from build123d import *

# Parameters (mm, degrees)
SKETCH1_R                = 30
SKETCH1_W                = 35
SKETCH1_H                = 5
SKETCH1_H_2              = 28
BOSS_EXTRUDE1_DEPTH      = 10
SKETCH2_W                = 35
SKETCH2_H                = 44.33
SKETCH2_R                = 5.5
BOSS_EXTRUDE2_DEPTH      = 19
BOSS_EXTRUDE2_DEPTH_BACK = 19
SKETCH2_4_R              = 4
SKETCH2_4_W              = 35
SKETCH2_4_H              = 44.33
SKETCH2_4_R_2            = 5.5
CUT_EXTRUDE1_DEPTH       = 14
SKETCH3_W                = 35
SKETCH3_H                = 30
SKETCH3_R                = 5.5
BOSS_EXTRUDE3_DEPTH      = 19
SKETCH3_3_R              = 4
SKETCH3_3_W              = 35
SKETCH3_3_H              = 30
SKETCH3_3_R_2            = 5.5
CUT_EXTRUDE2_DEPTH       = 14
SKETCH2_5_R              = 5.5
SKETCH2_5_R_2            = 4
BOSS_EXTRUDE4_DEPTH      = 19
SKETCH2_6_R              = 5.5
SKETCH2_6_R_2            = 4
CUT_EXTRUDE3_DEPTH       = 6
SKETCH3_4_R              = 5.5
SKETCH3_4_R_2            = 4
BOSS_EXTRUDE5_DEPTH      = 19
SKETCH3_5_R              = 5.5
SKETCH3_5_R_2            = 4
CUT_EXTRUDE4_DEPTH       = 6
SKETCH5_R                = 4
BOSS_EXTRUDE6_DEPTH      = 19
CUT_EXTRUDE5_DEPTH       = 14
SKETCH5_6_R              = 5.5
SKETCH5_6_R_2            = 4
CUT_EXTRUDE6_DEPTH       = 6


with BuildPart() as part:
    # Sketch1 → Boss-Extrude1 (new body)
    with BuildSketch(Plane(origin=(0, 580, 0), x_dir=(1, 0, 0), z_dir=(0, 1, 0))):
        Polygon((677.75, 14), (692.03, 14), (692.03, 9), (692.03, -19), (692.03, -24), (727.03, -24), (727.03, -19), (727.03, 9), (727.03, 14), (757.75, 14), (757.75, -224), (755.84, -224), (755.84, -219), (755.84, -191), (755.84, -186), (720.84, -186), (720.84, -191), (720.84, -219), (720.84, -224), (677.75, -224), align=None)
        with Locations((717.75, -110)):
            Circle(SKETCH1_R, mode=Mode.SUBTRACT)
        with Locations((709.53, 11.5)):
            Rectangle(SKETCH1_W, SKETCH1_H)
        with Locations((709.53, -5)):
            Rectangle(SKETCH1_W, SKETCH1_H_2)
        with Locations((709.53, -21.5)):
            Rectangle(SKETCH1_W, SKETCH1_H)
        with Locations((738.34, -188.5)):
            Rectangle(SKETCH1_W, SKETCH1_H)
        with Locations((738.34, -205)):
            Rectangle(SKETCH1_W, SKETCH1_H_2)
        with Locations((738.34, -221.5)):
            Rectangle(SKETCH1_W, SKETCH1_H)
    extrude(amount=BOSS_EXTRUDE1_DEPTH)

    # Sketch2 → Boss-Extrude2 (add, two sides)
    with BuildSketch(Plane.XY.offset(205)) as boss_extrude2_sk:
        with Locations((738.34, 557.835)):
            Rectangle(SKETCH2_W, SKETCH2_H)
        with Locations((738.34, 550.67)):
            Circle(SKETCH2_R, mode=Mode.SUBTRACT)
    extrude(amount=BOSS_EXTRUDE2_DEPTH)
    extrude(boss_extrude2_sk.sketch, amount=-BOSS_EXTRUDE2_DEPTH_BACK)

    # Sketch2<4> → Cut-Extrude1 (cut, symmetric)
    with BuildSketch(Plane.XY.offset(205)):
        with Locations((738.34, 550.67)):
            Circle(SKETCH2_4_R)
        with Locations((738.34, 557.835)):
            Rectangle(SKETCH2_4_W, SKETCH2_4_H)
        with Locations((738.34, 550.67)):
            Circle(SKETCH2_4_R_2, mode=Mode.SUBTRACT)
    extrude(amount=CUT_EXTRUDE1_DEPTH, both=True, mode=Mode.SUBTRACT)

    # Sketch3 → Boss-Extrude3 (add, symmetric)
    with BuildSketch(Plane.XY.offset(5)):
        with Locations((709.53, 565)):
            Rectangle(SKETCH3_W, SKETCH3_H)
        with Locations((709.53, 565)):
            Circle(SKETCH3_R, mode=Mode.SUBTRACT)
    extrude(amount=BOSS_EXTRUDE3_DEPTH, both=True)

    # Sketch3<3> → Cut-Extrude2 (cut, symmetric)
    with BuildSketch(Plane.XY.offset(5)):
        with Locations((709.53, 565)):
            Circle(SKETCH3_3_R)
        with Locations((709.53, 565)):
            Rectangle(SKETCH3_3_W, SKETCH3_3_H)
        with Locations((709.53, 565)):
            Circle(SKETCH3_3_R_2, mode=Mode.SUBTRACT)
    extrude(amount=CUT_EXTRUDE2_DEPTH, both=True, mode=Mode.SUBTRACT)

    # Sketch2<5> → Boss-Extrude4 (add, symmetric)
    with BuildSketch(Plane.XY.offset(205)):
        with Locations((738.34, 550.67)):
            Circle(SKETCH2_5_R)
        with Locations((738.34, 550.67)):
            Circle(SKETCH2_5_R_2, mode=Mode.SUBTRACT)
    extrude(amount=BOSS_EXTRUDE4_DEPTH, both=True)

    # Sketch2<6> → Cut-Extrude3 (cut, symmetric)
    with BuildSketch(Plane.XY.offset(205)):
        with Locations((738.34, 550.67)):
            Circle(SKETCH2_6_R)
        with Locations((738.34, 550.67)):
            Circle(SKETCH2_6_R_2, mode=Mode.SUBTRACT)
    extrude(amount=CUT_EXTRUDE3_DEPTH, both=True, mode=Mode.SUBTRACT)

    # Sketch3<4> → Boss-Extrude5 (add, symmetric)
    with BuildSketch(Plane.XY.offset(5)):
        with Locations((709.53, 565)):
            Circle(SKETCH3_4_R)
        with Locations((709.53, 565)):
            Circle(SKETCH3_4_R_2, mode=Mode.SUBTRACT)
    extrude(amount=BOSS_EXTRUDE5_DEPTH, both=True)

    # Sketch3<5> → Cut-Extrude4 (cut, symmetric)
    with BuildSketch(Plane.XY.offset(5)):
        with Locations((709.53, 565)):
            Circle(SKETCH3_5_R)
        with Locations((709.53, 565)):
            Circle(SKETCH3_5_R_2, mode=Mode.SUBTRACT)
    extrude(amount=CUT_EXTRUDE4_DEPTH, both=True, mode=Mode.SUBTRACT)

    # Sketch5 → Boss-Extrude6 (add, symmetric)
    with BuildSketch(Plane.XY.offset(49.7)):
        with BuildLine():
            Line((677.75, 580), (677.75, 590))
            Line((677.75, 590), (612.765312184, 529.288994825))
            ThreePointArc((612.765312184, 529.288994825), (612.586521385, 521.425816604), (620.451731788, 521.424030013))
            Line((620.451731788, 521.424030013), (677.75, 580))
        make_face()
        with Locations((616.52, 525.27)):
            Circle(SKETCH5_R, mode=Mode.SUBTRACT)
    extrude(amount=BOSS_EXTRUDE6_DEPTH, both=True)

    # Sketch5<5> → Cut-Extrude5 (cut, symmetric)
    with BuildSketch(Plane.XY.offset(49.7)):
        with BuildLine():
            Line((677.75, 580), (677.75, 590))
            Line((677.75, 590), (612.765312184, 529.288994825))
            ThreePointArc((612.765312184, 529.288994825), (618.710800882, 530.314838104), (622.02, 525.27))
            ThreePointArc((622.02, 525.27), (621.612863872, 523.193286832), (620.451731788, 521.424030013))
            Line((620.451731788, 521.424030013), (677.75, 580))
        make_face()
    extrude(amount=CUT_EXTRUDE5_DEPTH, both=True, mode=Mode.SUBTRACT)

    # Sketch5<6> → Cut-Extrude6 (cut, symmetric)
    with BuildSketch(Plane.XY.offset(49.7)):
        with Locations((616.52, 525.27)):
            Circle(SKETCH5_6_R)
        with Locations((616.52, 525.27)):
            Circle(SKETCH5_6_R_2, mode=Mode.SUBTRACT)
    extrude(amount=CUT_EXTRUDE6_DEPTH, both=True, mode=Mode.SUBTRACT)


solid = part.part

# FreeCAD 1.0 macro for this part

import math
import FreeCAD as App
import Part
import Sketcher
from FreeCAD import Vector

doc = App.newDocument("Part")
body = doc.addObject("PartDesign::Body", "Body")

sketch1 = body.newObject("Sketcher::SketchObject", "Sketch")
sketch1.AttachmentSupport = (doc.getObject("XZ_Plane"), [""])
sketch1.MapMode = "FlatFace"
sketch1.AttachmentOffset = App.Placement(Vector(0, 0, -580), App.Rotation())
sketch1.addGeometry(Part.LineSegment(Vector(758, -14, 0), Vector(678, -14, 0)), False)
sketch1.addGeometry(Part.LineSegment(Vector(678, -14, 0), Vector(678, 224, 0)), False)
sketch1.addGeometry(Part.LineSegment(Vector(678, 224, 0), Vector(758, 224, 0)), False)
sketch1.addGeometry(Part.LineSegment(Vector(758, 224, 0), Vector(758, -14, 0)), False)
sketch1.addGeometry(Part.Circle(Vector(718, 110, 0), Vector(0, 0, 1), 30), False)
sketch1.addConstraint(Sketcher.Constraint("Coincident", 0, 2, 1, 1))
sketch1.addConstraint(Sketcher.Constraint("Coincident", 1, 2, 2, 1))
sketch1.addConstraint(Sketcher.Constraint("Coincident", 2, 2, 3, 1))
sketch1.addConstraint(Sketcher.Constraint("Coincident", 3, 2, 0, 1))
sketch1.addConstraint(Sketcher.Constraint("Horizontal", 0))
sketch1.addConstraint(Sketcher.Constraint("Vertical", 1))
sketch1.addConstraint(Sketcher.Constraint("Horizontal", 2))
sketch1.addConstraint(Sketcher.Constraint("Vertical", 3))
sketch1.addConstraint(Sketcher.Constraint("Diameter", 4, 60.0))
sketch1.addConstraint(Sketcher.Constraint("DistanceX", 0, 2, 0, 1, 80.0))
sketch1.addConstraint(Sketcher.Constraint("DistanceY", 1, 1, 1, 2, 238.0))
sketch1.addConstraint(Sketcher.Constraint("DistanceY", -1, 1, 4, 3, 110.0))
sketch1.addConstraint(Sketcher.Constraint("DistanceY", 0, 2, -1, 1, 14.0))
sketch1.addConstraint(Sketcher.Constraint("DistanceX", 0, 2, 4, 3, 40.0))
sketch1.addConstraint(Sketcher.Constraint("DistanceX", -1, 1, 4, 3, 717.75))
pad1 = body.newObject("PartDesign::Pad", "Pad")
pad1.Profile = sketch1
pad1.Length = 10
pad1.Reversed = True

sketch2 = body.newObject("Sketcher::SketchObject", "Sketch001")
sketch2.AttachmentSupport = (doc.getObject("XY_Plane"), [""])
sketch2.MapMode = "FlatFace"
sketch2.AttachmentOffset = App.Placement(Vector(0, 0, 205), App.Rotation())
sketch2.addGeometry(Part.LineSegment(Vector(721, 580, 0), Vector(721, 536, 0)), False)
sketch2.addGeometry(Part.LineSegment(Vector(721, 536, 0), Vector(756, 536, 0)), False)
sketch2.addGeometry(Part.LineSegment(Vector(756, 536, 0), Vector(756, 580, 0)), False)
sketch2.addGeometry(Part.LineSegment(Vector(756, 580, 0), Vector(721, 580, 0)), False)
sketch2.addGeometry(Part.Circle(Vector(738, 551, 0), Vector(0, 0, 1), 6), False)
sketch2.addConstraint(Sketcher.Constraint("Coincident", 0, 2, 1, 1))
sketch2.addConstraint(Sketcher.Constraint("Coincident", 1, 2, 2, 1))
sketch2.addConstraint(Sketcher.Constraint("Coincident", 2, 2, 3, 1))
sketch2.addConstraint(Sketcher.Constraint("Coincident", 3, 2, 0, 1))
sketch2.addConstraint(Sketcher.Constraint("Vertical", 0))
sketch2.addConstraint(Sketcher.Constraint("Horizontal", 1))
sketch2.addConstraint(Sketcher.Constraint("Vertical", 2))
sketch2.addConstraint(Sketcher.Constraint("Horizontal", 3))
sketch2.addConstraint(Sketcher.Constraint("Diameter", 4, 11.0))
sketch2.addConstraint(Sketcher.Constraint("DistanceX", 1, 1, 1, 2, 35.0))
sketch2.addConstraint(Sketcher.Constraint("DistanceY", -1, 1, 2, 2, 580.0))
sketch2.addConstraint(Sketcher.Constraint("DistanceY", 0, 2, 4, 3, 15.0))
sketch2.addConstraint(Sketcher.Constraint("DistanceY", 0, 2, 0, 1, 44.33))
sketch2.addConstraint(Sketcher.Constraint("DistanceX", 0, 2, 4, 3, 17.5))
sketch2.addConstraint(Sketcher.Constraint("DistanceX", -1, 1, 4, 3, 738.34))
pad2 = body.newObject("PartDesign::Pad", "Pad001")
pad2.Profile = sketch2
pad2.Type = "TwoLengths"
pad2.Length = 19
pad2.Length2 = 19

sketch3 = body.newObject("Sketcher::SketchObject", "Sketch002")
sketch3.AttachmentSupport = (doc.getObject("XY_Plane"), [""])
sketch3.MapMode = "FlatFace"
sketch3.AttachmentOffset = App.Placement(Vector(0, 0, 205), App.Rotation())
sketch3.addGeometry(Part.LineSegment(Vector(721, 580, 0), Vector(721, 536, 0)), False)
sketch3.addGeometry(Part.LineSegment(Vector(721, 536, 0), Vector(756, 536, 0)), False)
sketch3.addGeometry(Part.LineSegment(Vector(756, 536, 0), Vector(756, 580, 0)), False)
sketch3.addGeometry(Part.LineSegment(Vector(756, 580, 0), Vector(721, 580, 0)), False)
sketch3.addGeometry(Part.Circle(Vector(738, 551, 0), Vector(0, 0, 1), 6), False)
sketch3.addConstraint(Sketcher.Constraint("Coincident", 0, 2, 1, 1))
sketch3.addConstraint(Sketcher.Constraint("Coincident", 1, 2, 2, 1))
sketch3.addConstraint(Sketcher.Constraint("Coincident", 2, 2, 3, 1))
sketch3.addConstraint(Sketcher.Constraint("Coincident", 3, 2, 0, 1))
sketch3.addConstraint(Sketcher.Constraint("Vertical", 0))
sketch3.addConstraint(Sketcher.Constraint("Horizontal", 1))
sketch3.addConstraint(Sketcher.Constraint("Vertical", 2))
sketch3.addConstraint(Sketcher.Constraint("Horizontal", 3))
sketch3.addConstraint(Sketcher.Constraint("Diameter", 4, 11.0))
sketch3.addConstraint(Sketcher.Constraint("DistanceX", 1, 1, 1, 2, 35.0))
sketch3.addConstraint(Sketcher.Constraint("DistanceY", -1, 1, 2, 2, 580.0))
sketch3.addConstraint(Sketcher.Constraint("DistanceY", 0, 2, 4, 3, 15.0))
sketch3.addConstraint(Sketcher.Constraint("DistanceY", 0, 2, 0, 1, 44.33))
sketch3.addConstraint(Sketcher.Constraint("DistanceX", 0, 2, 4, 3, 17.5))
sketch3.addConstraint(Sketcher.Constraint("DistanceX", -1, 1, 4, 3, 738.34))
pocket1 = body.newObject("PartDesign::Pocket", "Pocket")
pocket1.Profile = sketch3
pocket1.Length = 28
pocket1.Midplane = True

sketch4 = body.newObject("Sketcher::SketchObject", "Sketch003")
sketch4.AttachmentSupport = (doc.getObject("XY_Plane"), [""])
sketch4.MapMode = "FlatFace"
sketch4.AttachmentOffset = App.Placement(Vector(0, 0, 5), App.Rotation())
sketch4.addGeometry(Part.LineSegment(Vector(692, 580, 0), Vector(692, 550, 0)), False)
sketch4.addGeometry(Part.LineSegment(Vector(692, 550, 0), Vector(727, 550, 0)), False)
sketch4.addGeometry(Part.LineSegment(Vector(727, 550, 0), Vector(727, 580, 0)), False)
sketch4.addGeometry(Part.LineSegment(Vector(727, 580, 0), Vector(692, 580, 0)), False)
sketch4.addGeometry(Part.Circle(Vector(710, 565, 0), Vector(0, 0, 1), 6), False)
sketch4.addConstraint(Sketcher.Constraint("Coincident", 0, 2, 1, 1))
sketch4.addConstraint(Sketcher.Constraint("Coincident", 1, 2, 2, 1))
sketch4.addConstraint(Sketcher.Constraint("Coincident", 2, 2, 3, 1))
sketch4.addConstraint(Sketcher.Constraint("Coincident", 3, 2, 0, 1))
sketch4.addConstraint(Sketcher.Constraint("Vertical", 0))
sketch4.addConstraint(Sketcher.Constraint("Horizontal", 1))
sketch4.addConstraint(Sketcher.Constraint("Vertical", 2))
sketch4.addConstraint(Sketcher.Constraint("Horizontal", 3))
sketch4.addConstraint(Sketcher.Constraint("Diameter", 4, 11.0))
sketch4.addConstraint(Sketcher.Constraint("DistanceX", 1, 1, 1, 2, 35.0))
sketch4.addConstraint(Sketcher.Constraint("DistanceY", 0, 2, 0, 1, 30.0))
sketch4.addConstraint(Sketcher.Constraint("DistanceY", -1, 1, 4, 3, 565.0))
sketch4.addConstraint(Sketcher.Constraint("DistanceY", -1, 1, 0, 2, 550.0))
sketch4.addConstraint(Sketcher.Constraint("DistanceX", 0, 2, 4, 3, 17.5))
sketch4.addConstraint(Sketcher.Constraint("DistanceX", -1, 1, 4, 3, 709.53))
pad3 = body.newObject("PartDesign::Pad", "Pad002")
pad3.Profile = sketch4
pad3.Length = 38
pad3.Midplane = True

sketch5 = body.newObject("Sketcher::SketchObject", "Sketch004")
sketch5.AttachmentSupport = (doc.getObject("XY_Plane"), [""])
sketch5.MapMode = "FlatFace"
sketch5.AttachmentOffset = App.Placement(Vector(0, 0, 5), App.Rotation())
sketch5.addGeometry(Part.LineSegment(Vector(692, 580, 0), Vector(692, 550, 0)), False)
sketch5.addGeometry(Part.LineSegment(Vector(692, 550, 0), Vector(727, 550, 0)), False)
sketch5.addGeometry(Part.LineSegment(Vector(727, 550, 0), Vector(727, 580, 0)), False)
sketch5.addGeometry(Part.LineSegment(Vector(727, 580, 0), Vector(692, 580, 0)), False)
sketch5.addGeometry(Part.Circle(Vector(710, 565, 0), Vector(0, 0, 1), 6), False)
sketch5.addConstraint(Sketcher.Constraint("Coincident", 0, 2, 1, 1))
sketch5.addConstraint(Sketcher.Constraint("Coincident", 1, 2, 2, 1))
sketch5.addConstraint(Sketcher.Constraint("Coincident", 2, 2, 3, 1))
sketch5.addConstraint(Sketcher.Constraint("Coincident", 3, 2, 0, 1))
sketch5.addConstraint(Sketcher.Constraint("Vertical", 0))
sketch5.addConstraint(Sketcher.Constraint("Horizontal", 1))
sketch5.addConstraint(Sketcher.Constraint("Vertical", 2))
sketch5.addConstraint(Sketcher.Constraint("Horizontal", 3))
sketch5.addConstraint(Sketcher.Constraint("Diameter", 4, 11.0))
sketch5.addConstraint(Sketcher.Constraint("DistanceX", 1, 1, 1, 2, 35.0))
sketch5.addConstraint(Sketcher.Constraint("DistanceY", 0, 2, 0, 1, 30.0))
sketch5.addConstraint(Sketcher.Constraint("DistanceY", -1, 1, 4, 3, 565.0))
sketch5.addConstraint(Sketcher.Constraint("DistanceY", -1, 1, 0, 2, 550.0))
sketch5.addConstraint(Sketcher.Constraint("DistanceX", 0, 2, 4, 3, 17.5))
sketch5.addConstraint(Sketcher.Constraint("DistanceX", -1, 1, 4, 3, 709.53))
pocket2 = body.newObject("PartDesign::Pocket", "Pocket001")
pocket2.Profile = sketch5
pocket2.Length = 28
pocket2.Midplane = True

sketch6 = body.newObject("Sketcher::SketchObject", "Sketch005")
sketch6.AttachmentSupport = (doc.getObject("XY_Plane"), [""])
sketch6.MapMode = "FlatFace"
sketch6.AttachmentOffset = App.Placement(Vector(0, 0, 205), App.Rotation())
sketch6.addGeometry(Part.Circle(Vector(738.3, 550.7, 0), Vector(0, 0, 1), 5.5), False)
sketch6.addGeometry(Part.Circle(Vector(738.3, 550.7, 0), Vector(0, 0, 1), 4), False)
sketch6.addConstraint(Sketcher.Constraint("Coincident", 1, 3, 0, 3))
sketch6.addConstraint(Sketcher.Constraint("Diameter", 0, 11.0))
sketch6.addConstraint(Sketcher.Constraint("Diameter", 1, 8.0))
sketch6.addConstraint(Sketcher.Constraint("DistanceX", -1, 1, 0, 3, 738.34))
sketch6.addConstraint(Sketcher.Constraint("DistanceY", -1, 1, 0, 3, 550.67))
pad4 = body.newObject("PartDesign::Pad", "Pad003")
pad4.Profile = sketch6
pad4.Length = 38
pad4.Midplane = True

sketch7 = body.newObject("Sketcher::SketchObject", "Sketch006")
sketch7.AttachmentSupport = (doc.getObject("XY_Plane"), [""])
sketch7.MapMode = "FlatFace"
sketch7.AttachmentOffset = App.Placement(Vector(0, 0, 205), App.Rotation())
sketch7.addGeometry(Part.Circle(Vector(738.3, 550.7, 0), Vector(0, 0, 1), 5.5), False)
sketch7.addGeometry(Part.Circle(Vector(738.3, 550.7, 0), Vector(0, 0, 1), 4), False)
sketch7.addConstraint(Sketcher.Constraint("Coincident", 1, 3, 0, 3))
sketch7.addConstraint(Sketcher.Constraint("Diameter", 0, 11.0))
sketch7.addConstraint(Sketcher.Constraint("Diameter", 1, 8.0))
sketch7.addConstraint(Sketcher.Constraint("DistanceX", -1, 1, 0, 3, 738.34))
sketch7.addConstraint(Sketcher.Constraint("DistanceY", -1, 1, 0, 3, 550.67))
pocket3 = body.newObject("PartDesign::Pocket", "Pocket002")
pocket3.Profile = sketch7
pocket3.Length = 12
pocket3.Midplane = True

sketch8 = body.newObject("Sketcher::SketchObject", "Sketch007")
sketch8.AttachmentSupport = (doc.getObject("XY_Plane"), [""])
sketch8.MapMode = "FlatFace"
sketch8.AttachmentOffset = App.Placement(Vector(0, 0, 5), App.Rotation())
sketch8.addGeometry(Part.Circle(Vector(709.5, 565, 0), Vector(0, 0, 1), 5.5), False)
sketch8.addGeometry(Part.Circle(Vector(709.5, 565, 0), Vector(0, 0, 1), 4), False)
sketch8.addConstraint(Sketcher.Constraint("Coincident", 1, 3, 0, 3))
sketch8.addConstraint(Sketcher.Constraint("Diameter", 0, 11.0))
sketch8.addConstraint(Sketcher.Constraint("Diameter", 1, 8.0))
sketch8.addConstraint(Sketcher.Constraint("DistanceY", -1, 1, 0, 3, 565.0))
sketch8.addConstraint(Sketcher.Constraint("DistanceX", -1, 1, 0, 3, 709.53))
pad5 = body.newObject("PartDesign::Pad", "Pad004")
pad5.Profile = sketch8
pad5.Length = 38
pad5.Midplane = True

sketch9 = body.newObject("Sketcher::SketchObject", "Sketch008")
sketch9.AttachmentSupport = (doc.getObject("XY_Plane"), [""])
sketch9.MapMode = "FlatFace"
sketch9.AttachmentOffset = App.Placement(Vector(0, 0, 5), App.Rotation())
sketch9.addGeometry(Part.Circle(Vector(709.5, 565, 0), Vector(0, 0, 1), 5.5), False)
sketch9.addGeometry(Part.Circle(Vector(709.5, 565, 0), Vector(0, 0, 1), 4), False)
sketch9.addConstraint(Sketcher.Constraint("Coincident", 1, 3, 0, 3))
sketch9.addConstraint(Sketcher.Constraint("Diameter", 0, 11.0))
sketch9.addConstraint(Sketcher.Constraint("Diameter", 1, 8.0))
sketch9.addConstraint(Sketcher.Constraint("DistanceY", -1, 1, 0, 3, 565.0))
sketch9.addConstraint(Sketcher.Constraint("DistanceX", -1, 1, 0, 3, 709.53))
pocket4 = body.newObject("PartDesign::Pocket", "Pocket003")
pocket4.Profile = sketch9
pocket4.Length = 12
pocket4.Midplane = True

sketch10 = body.newObject("Sketcher::SketchObject", "Sketch009")
sketch10.AttachmentSupport = (doc.getObject("XY_Plane"), [""])
sketch10.MapMode = "FlatFace"
sketch10.AttachmentOffset = App.Placement(Vector(0, 0, 49.7), App.Rotation())
sketch10.addGeometry(Part.LineSegment(Vector(677.8, 580, 0), Vector(677.8, 590, 0)), False)
sketch10.addGeometry(Part.LineSegment(Vector(677.8, 590, 0), Vector(612.8, 529.3, 0)), False)
sketch10.addGeometry(Part.ArcOfCircle(Part.Circle(Vector(616.5, 525.3, 0), Vector(0, 0, 1), 5.5), math.radians(133), math.radians(316)), False)
sketch10.addGeometry(Part.LineSegment(Vector(620.5, 521.4, 0), Vector(677.8, 580, 0)), False)
sketch10.addGeometry(Part.Circle(Vector(616.5, 525.3, 0), Vector(0, 0, 1), 4), False)
sketch10.addConstraint(Sketcher.Constraint("Coincident", 0, 2, 1, 1))
sketch10.addConstraint(Sketcher.Constraint("Tangent", 1, 2, 2, 1))
sketch10.addConstraint(Sketcher.Constraint("Tangent", 2, 2, 3, 1))
sketch10.addConstraint(Sketcher.Constraint("Coincident", 3, 2, 0, 1))
sketch10.addConstraint(Sketcher.Constraint("Vertical", 0))
sketch10.addConstraint(Sketcher.Constraint("Coincident", 4, 3, 2, 3))
sketch10.addConstraint(Sketcher.Constraint("Diameter", 4, 8.0))
sketch10.addConstraint(Sketcher.Constraint("Radius", 2, 5.5))
sketch10.addConstraint(Sketcher.Constraint("DistanceY", 0, 1, 0, 2, 10.0))
sketch10.addConstraint(Sketcher.Constraint("DistanceY", -1, 1, 0, 2, 590.0))
sketch10.addConstraint(Sketcher.Constraint("DistanceX", -1, 1, 2, 3, 616.52))
sketch10.addConstraint(Sketcher.Constraint("DistanceY", -1, 1, 2, 3, 525.27))
sketch10.addConstraint(Sketcher.Constraint("DistanceX", -1, 1, 0, 2, 677.75))
pad6 = body.newObject("PartDesign::Pad", "Pad005")
pad6.Profile = sketch10
pad6.Length = 38
pad6.Midplane = True

sketch11 = body.newObject("Sketcher::SketchObject", "Sketch010")
sketch11.AttachmentSupport = (doc.getObject("XY_Plane"), [""])
sketch11.MapMode = "FlatFace"
sketch11.AttachmentOffset = App.Placement(Vector(0, 0, 49.7), App.Rotation())
sketch11.addGeometry(Part.LineSegment(Vector(677.8, 580, 0), Vector(677.8, 590, 0)), False)
sketch11.addGeometry(Part.LineSegment(Vector(677.8, 590, 0), Vector(612.8, 529.3, 0)), False)
sketch11.addGeometry(Part.ArcOfCircle(Part.Circle(Vector(616.5, 525.3, 0), Vector(0, 0, 1), 5.5), math.radians(0), math.radians(133)), False)
sketch11.addGeometry(Part.ArcOfCircle(Part.Circle(Vector(616.5, 525.3, 0), Vector(0, 0, 1), 5.5), math.radians(-44), math.radians(0)), False)
sketch11.addGeometry(Part.LineSegment(Vector(620.5, 521.4, 0), Vector(677.8, 580, 0)), False)
sketch11.addConstraint(Sketcher.Constraint("Coincident", 0, 2, 1, 1))
sketch11.addConstraint(Sketcher.Constraint("Tangent", 1, 2, 2, 2))
sketch11.addConstraint(Sketcher.Constraint("Tangent", 2, 1, 3, 2))
sketch11.addConstraint(Sketcher.Constraint("Tangent", 3, 1, 4, 1))
sketch11.addConstraint(Sketcher.Constraint("Coincident", 4, 2, 0, 1))
sketch11.addConstraint(Sketcher.Constraint("Vertical", 0))
sketch11.addConstraint(Sketcher.Constraint("Equal", 2, 3))
sketch11.addConstraint(Sketcher.Constraint("Horizontal", 3, 3, 2, 1))
sketch11.addConstraint(Sketcher.Constraint("Radius", 2, 5.5))
sketch11.addConstraint(Sketcher.Constraint("DistanceY", 0, 1, 0, 2, 10.0))
sketch11.addConstraint(Sketcher.Constraint("DistanceY", -1, 1, 0, 2, 590.0))
sketch11.addConstraint(Sketcher.Constraint("DistanceX", -1, 1, 2, 3, 616.52))
sketch11.addConstraint(Sketcher.Constraint("DistanceY", -1, 1, 2, 3, 525.27))
sketch11.addConstraint(Sketcher.Constraint("DistanceX", -1, 1, 0, 2, 677.75))
pocket5 = body.newObject("PartDesign::Pocket", "Pocket004")
pocket5.Profile = sketch11
pocket5.Length = 28
pocket5.Midplane = True

sketch12 = body.newObject("Sketcher::SketchObject", "Sketch011")
sketch12.AttachmentSupport = (doc.getObject("XY_Plane"), [""])
sketch12.MapMode = "FlatFace"
sketch12.AttachmentOffset = App.Placement(Vector(0, 0, 49.7), App.Rotation())
sketch12.addGeometry(Part.Circle(Vector(616.5, 525.3, 0), Vector(0, 0, 1), 5.5), False)
sketch12.addGeometry(Part.Circle(Vector(616.5, 525.3, 0), Vector(0, 0, 1), 4), False)
sketch12.addConstraint(Sketcher.Constraint("Coincident", 1, 3, 0, 3))
sketch12.addConstraint(Sketcher.Constraint("Diameter", 0, 11.0))
sketch12.addConstraint(Sketcher.Constraint("Diameter", 1, 8.0))
sketch12.addConstraint(Sketcher.Constraint("DistanceX", -1, 1, 0, 3, 616.52))
sketch12.addConstraint(Sketcher.Constraint("DistanceY", -1, 1, 0, 3, 525.27))
pocket6 = body.newObject("PartDesign::Pocket", "Pocket005")
pocket6.Profile = sketch12
pocket6.Length = 12
pocket6.Midplane = True

doc.recompute()
